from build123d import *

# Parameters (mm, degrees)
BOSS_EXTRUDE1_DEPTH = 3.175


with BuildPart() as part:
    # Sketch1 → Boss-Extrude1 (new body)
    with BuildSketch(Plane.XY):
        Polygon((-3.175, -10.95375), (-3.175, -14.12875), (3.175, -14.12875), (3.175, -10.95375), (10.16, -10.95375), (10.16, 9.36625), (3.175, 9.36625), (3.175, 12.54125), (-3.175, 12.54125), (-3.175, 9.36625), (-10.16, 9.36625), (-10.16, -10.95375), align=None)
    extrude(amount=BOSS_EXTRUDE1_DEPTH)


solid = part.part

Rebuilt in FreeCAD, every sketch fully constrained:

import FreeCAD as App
import Part
import Sketcher
Q = App.Units.Quantity

doc = App.newDocument("Part")
params = doc.addObject("Spreadsheet::Sheet", "Params")
for row, (alias, value) in enumerate([
    ("sketch1_height", "0.8 in"),
    ("sketch1_width", "0.25 in"),
    ("sketch1_height2", "0.125 in"),
    ("pad1_length", "0.125 in"),
], start=1):
    params.set(f"A{row}", alias)
    params.set(f"B{row}", "=" + value)
    params.setAlias(f"B{row}", alias)

body = doc.addObject("PartDesign::Body", "Body")

sketch1 = doc.addObject("Sketcher::SketchObject", "Sketch")
body.addObject(sketch1)
sketch1.AttachmentSupport = (doc.XY_Plane, [""])
sketch1.MapMode = "FlatFace"
sketch1.addGeometry(Part.LineSegment(App.Vector(-3.2, -11, 0), App.Vector(-3.2, -14.1, 0)), False)
sketch1.addGeometry(Part.LineSegment(App.Vector(-3.2, -14.1, 0), App.Vector(3.2, -14.1, 0)), False)
sketch1.addGeometry(Part.LineSegment(App.Vector(3.2, -14.1, 0), App.Vector(3.2, -11, 0)), False)
sketch1.addGeometry(Part.LineSegment(App.Vector(3.2, -11, 0), App.Vector(10.2, -11, 0)), False)
sketch1.addGeometry(Part.LineSegment(App.Vector(10.2, -11, 0), App.Vector(10.2, 9.4, 0)), False)
sketch1.addGeometry(Part.LineSegment(App.Vector(10.2, 9.4, 0), App.Vector(3.2, 9.4, 0)), False)
sketch1.addGeometry(Part.LineSegment(App.Vector(3.2, 9.4, 0), App.Vector(3.2, 12.5, 0)), False)
sketch1.addGeometry(Part.LineSegment(App.Vector(3.2, 12.5, 0), App.Vector(-3.2, 12.5, 0)), False)
sketch1.addGeometry(Part.LineSegment(App.Vector(-3.2, 12.5, 0), App.Vector(-3.2, 9.4, 0)), False)
sketch1.addGeometry(Part.LineSegment(App.Vector(-3.2, 9.4, 0), App.Vector(-10.2, 9.4, 0)), False)
sketch1.addGeometry(Part.LineSegment(App.Vector(-10.2, 9.4, 0), App.Vector(-10.2, -11, 0)), False)
sketch1.addGeometry(Part.LineSegment(App.Vector(-10.2, -11, 0), App.Vector(-3.2, -11, 0)), False)
sketch1.addConstraint(Sketcher.Constraint("Coincident", 0, 2, 1, 1))
sketch1.addConstraint(Sketcher.Constraint("Coincident", 1, 2, 2, 1))
sketch1.addConstraint(Sketcher.Constraint("Coincident", 2, 2, 3, 1))
sketch1.addConstraint(Sketcher.Constraint("Coincident", 3, 2, 4, 1))
sketch1.addConstraint(Sketcher.Constraint("Coincident", 4, 2, 5, 1))
sketch1.addConstraint(Sketcher.Constraint("Coincident", 5, 2, 6, 1))
sketch1.addConstraint(Sketcher.Constraint("Coincident", 6, 2, 7, 1))
sketch1.addConstraint(Sketcher.Constraint("Coincident", 7, 2, 8, 1))
sketch1.addConstraint(Sketcher.Constraint("Coincident", 8, 2, 9, 1))
sketch1.addConstraint(Sketcher.Constraint("Coincident", 9, 2, 10, 1))
sketch1.addConstraint(Sketcher.Constraint("Coincident", 10, 2, 11, 1))
sketch1.addConstraint(Sketcher.Constraint("Coincident", 11, 2, 0, 1))
sketch1.addConstraint(Sketcher.Constraint("Vertical", 0))
sketch1.addConstraint(Sketcher.Constraint("Horizontal", 1))
sketch1.addConstraint(Sketcher.Constraint("Vertical", 2))
sketch1.addConstraint(Sketcher.Constraint("Horizontal", 3))
sketch1.addConstraint(Sketcher.Constraint("Vertical", 4))
sketch1.addConstraint(Sketcher.Constraint("Horizontal", 5))
sketch1.addConstraint(Sketcher.Constraint("Vertical", 6))
sketch1.addConstraint(Sketcher.Constraint("Horizontal", 7))
sketch1.addConstraint(Sketcher.Constraint("Vertical", 8))
sketch1.addConstraint(Sketcher.Constraint("Horizontal", 9))
sketch1.addConstraint(Sketcher.Constraint("Vertical", 10))
sketch1.addConstraint(Sketcher.Constraint("Horizontal", 11))
sketch1.addConstraint(Sketcher.Constraint("Symmetric", 5, 2, 8, 2, -2))
sketch1.addConstraint(Sketcher.Constraint("Symmetric", 3, 2, 10, 2, -2))
sketch1.addConstraint(Sketcher.Constraint("Vertical", 2, 2, 5, 2))
sketch1.addConstraint(Sketcher.Constraint("Vertical", 0, 2, 7, 2))
sketch1.addConstraint(Sketcher.Constraint("Equal", 2, 6))
sketch1.addConstraint(Sketcher.Constraint("DistanceY", 4, 1, 4, 2, Q("0.8 in")))
sketch1.addConstraint(Sketcher.Constraint("DistanceX", 1, 1, 1, 2, Q("0.25 in")))
sketch1.addConstraint(Sketcher.Constraint("DistanceX", -1, 1, 3, 2, Q("0.4 in")))
sketch1.addConstraint(Sketcher.Constraint("DistanceY", 0, 2, 0, 1, Q("0.125 in")))
sketch1.addConstraint(Sketcher.Constraint("DistanceY", 0, 2, -1, 1, Q("14.12875 mm")))
sketch1.setExpression("Constraints[29]", "Params.sketch1_height")
sketch1.setExpression("Constraints[30]", "Params.sketch1_width")
sketch1.setExpression("Constraints[32]", "Params.sketch1_height2")
pad1 = doc.addObject("PartDesign::Pad", "Pad")
body.addObject(pad1)
pad1.Profile = sketch1
pad1.setExpression("Length", "Params.pad1_length")

doc.recompute()
